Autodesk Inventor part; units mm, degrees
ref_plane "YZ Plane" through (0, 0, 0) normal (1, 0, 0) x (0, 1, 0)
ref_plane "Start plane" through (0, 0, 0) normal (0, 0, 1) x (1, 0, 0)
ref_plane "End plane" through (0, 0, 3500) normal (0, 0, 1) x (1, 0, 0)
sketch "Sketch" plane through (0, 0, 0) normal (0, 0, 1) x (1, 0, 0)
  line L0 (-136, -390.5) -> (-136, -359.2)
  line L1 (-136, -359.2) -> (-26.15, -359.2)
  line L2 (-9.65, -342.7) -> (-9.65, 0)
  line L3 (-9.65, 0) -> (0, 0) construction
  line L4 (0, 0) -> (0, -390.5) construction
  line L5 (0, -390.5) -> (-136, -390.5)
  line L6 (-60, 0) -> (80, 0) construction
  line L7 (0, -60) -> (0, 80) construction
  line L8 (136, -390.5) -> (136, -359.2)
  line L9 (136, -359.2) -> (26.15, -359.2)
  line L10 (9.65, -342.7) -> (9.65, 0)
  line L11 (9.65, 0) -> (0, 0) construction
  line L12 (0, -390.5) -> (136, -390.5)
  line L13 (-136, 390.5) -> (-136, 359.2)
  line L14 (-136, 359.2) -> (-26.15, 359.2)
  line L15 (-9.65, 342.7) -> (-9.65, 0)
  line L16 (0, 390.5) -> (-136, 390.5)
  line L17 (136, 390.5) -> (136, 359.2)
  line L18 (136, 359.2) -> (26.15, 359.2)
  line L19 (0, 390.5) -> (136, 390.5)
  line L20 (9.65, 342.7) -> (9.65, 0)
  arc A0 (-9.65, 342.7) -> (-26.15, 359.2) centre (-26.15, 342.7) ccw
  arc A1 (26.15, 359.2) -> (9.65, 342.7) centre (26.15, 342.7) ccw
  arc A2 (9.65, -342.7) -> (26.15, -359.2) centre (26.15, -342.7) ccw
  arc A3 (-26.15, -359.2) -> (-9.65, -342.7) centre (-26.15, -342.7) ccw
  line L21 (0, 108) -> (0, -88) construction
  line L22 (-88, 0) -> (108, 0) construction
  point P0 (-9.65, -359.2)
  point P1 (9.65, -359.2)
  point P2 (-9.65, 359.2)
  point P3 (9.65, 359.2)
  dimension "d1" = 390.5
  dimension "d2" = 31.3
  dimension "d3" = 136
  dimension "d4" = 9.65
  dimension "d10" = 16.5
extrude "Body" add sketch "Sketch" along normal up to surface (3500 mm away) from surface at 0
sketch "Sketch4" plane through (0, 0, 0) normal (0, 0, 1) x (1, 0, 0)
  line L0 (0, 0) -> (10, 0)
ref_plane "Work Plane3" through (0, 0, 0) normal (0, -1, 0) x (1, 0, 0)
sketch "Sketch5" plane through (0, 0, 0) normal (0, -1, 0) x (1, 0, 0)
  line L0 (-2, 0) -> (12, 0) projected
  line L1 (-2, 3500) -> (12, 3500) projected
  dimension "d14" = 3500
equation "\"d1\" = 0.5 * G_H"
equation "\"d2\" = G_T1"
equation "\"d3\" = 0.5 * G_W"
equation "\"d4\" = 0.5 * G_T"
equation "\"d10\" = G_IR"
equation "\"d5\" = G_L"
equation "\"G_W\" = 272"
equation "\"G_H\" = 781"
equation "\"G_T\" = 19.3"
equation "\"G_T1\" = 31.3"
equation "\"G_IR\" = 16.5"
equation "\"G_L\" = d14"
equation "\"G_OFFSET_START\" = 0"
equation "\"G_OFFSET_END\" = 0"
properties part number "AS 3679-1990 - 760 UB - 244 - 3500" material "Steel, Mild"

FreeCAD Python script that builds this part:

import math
import FreeCAD as App
import Part
import Sketcher
from FreeCAD import Vector
Q = App.Units.Quantity

doc = App.newDocument("Part")
body = doc.addObject("PartDesign::Body", "Body")

# Sketch on XY plane
sketch1 = doc.addObject("Sketcher::SketchObject", "Sketch")
body.addObject(sketch1)
sketch1.AttachmentSupport = (doc.XY_Plane, [""])
sketch1.MapMode = "FlatFace"
sketch1.addGeometry([
    Part.LineSegment(Vector(-136, -359, 0), Vector(-136, -390, 0)),  # 0
    Part.LineSegment(Vector(-136, -390, 0), Vector(136, -390, 0)),  # 1
    Part.LineSegment(Vector(136, -390, 0), Vector(136, -359, 0)),  # 2
    Part.LineSegment(Vector(136, -359, 0), Vector(26, -359, 0)),  # 3
    Part.ArcOfCircle(Part.Circle(Vector(26, -343, 0), Vector(0, 0, 1), 16), math.radians(180), math.radians(270)),  # 4
    Part.LineSegment(Vector(10, -343, 0), Vector(10, 343, 0)),  # 5
    Part.ArcOfCircle(Part.Circle(Vector(26, 343, 0), Vector(0, 0, 1), 16), math.radians(90), math.radians(180)),  # 6
    Part.LineSegment(Vector(26, 359, 0), Vector(136, 359, 0)),  # 7
    Part.LineSegment(Vector(136, 359, 0), Vector(136, 390, 0)),  # 8
    Part.LineSegment(Vector(136, 390, 0), Vector(-136, 390, 0)),  # 9
    Part.LineSegment(Vector(-136, 390, 0), Vector(-136, 359, 0)),  # 10
    Part.LineSegment(Vector(-136, 359, 0), Vector(-26, 359, 0)),  # 11
    Part.ArcOfCircle(Part.Circle(Vector(-26, 343, 0), Vector(0, 0, 1), 16), math.radians(0), math.radians(90)),  # 12
    Part.LineSegment(Vector(-10, 343, 0), Vector(-10, -343, 0)),  # 13
    Part.ArcOfCircle(Part.Circle(Vector(-26, -343, 0), Vector(0, 0, 1), 16), math.radians(-90), math.radians(0)),  # 14
    Part.LineSegment(Vector(-26, -359, 0), Vector(-136, -359, 0)),  # 15
], False)
sketch1.addConstraint([
    Sketcher.Constraint("Coincident", 0, 2, 1, 1),
    Sketcher.Constraint("Coincident", 1, 2, 2, 1),
    Sketcher.Constraint("Coincident", 2, 2, 3, 1),
    Sketcher.Constraint("Tangent", 3, 2, 4, 2),
    Sketcher.Constraint("Tangent", 4, 1, 5, 1),
    Sketcher.Constraint("Tangent", 5, 2, 6, 2),
    Sketcher.Constraint("Tangent", 6, 1, 7, 1),
    Sketcher.Constraint("Coincident", 7, 2, 8, 1),
    Sketcher.Constraint("Coincident", 8, 2, 9, 1),
    Sketcher.Constraint("Coincident", 9, 2, 10, 1),
    Sketcher.Constraint("Coincident", 10, 2, 11, 1),
    Sketcher.Constraint("Tangent", 11, 2, 12, 2),
    Sketcher.Constraint("Tangent", 12, 1, 13, 1),
    Sketcher.Constraint("Tangent", 13, 2, 14, 2),
    Sketcher.Constraint("Tangent", 14, 1, 15, 1),
    Sketcher.Constraint("Coincident", 15, 2, 0, 1),
    Sketcher.Constraint("Vertical", 0),
    Sketcher.Constraint("Horizontal", 1),
    Sketcher.Constraint("Vertical", 2),
    Sketcher.Constraint("Horizontal", 3),
    Sketcher.Constraint("Vertical", 5),
    Sketcher.Constraint("Horizontal", 7),
    Sketcher.Constraint("Vertical", 8),
    Sketcher.Constraint("Horizontal", 9),
    Sketcher.Constraint("Vertical", 10),
    Sketcher.Constraint("Horizontal", 11),
    Sketcher.Constraint("Vertical", 13),
    Sketcher.Constraint("Horizontal", 15),
    Sketcher.Constraint("Equal", 4, 6),
    Sketcher.Constraint("Equal", 6, 12),
    Sketcher.Constraint("Equal", 12, 14),
    Sketcher.Constraint("Symmetric", 4, 3, 12, 3, -1, 1),
    Sketcher.Constraint("Symmetric", 0, 2, 8, 2, -1, 1),
    Sketcher.Constraint("Symmetric", 7, 2, 10, 2, -2),
    Sketcher.Constraint("Symmetric", 2, 2, 15, 2, -2),
    Sketcher.Constraint("Radius", 4, Q("16.5 mm")),
    Sketcher.Constraint("DistanceY", 0, 2, 0, 1, Q("31.3 mm")),
    Sketcher.Constraint("DistanceX", 0, 2, -1, 1, Q("136 mm")),
    Sketcher.Constraint("DistanceY", 0, 2, -1, 1, Q("390.5 mm")),
    Sketcher.Constraint("DistanceX", -1, 1, 4, 1, Q("9.65 mm")),
])
pad1 = doc.addObject("PartDesign::Pad", "Pad")
body.addObject(pad1)
pad1.Profile = sketch1
pad1.Length = 3500

doc.recompute()
